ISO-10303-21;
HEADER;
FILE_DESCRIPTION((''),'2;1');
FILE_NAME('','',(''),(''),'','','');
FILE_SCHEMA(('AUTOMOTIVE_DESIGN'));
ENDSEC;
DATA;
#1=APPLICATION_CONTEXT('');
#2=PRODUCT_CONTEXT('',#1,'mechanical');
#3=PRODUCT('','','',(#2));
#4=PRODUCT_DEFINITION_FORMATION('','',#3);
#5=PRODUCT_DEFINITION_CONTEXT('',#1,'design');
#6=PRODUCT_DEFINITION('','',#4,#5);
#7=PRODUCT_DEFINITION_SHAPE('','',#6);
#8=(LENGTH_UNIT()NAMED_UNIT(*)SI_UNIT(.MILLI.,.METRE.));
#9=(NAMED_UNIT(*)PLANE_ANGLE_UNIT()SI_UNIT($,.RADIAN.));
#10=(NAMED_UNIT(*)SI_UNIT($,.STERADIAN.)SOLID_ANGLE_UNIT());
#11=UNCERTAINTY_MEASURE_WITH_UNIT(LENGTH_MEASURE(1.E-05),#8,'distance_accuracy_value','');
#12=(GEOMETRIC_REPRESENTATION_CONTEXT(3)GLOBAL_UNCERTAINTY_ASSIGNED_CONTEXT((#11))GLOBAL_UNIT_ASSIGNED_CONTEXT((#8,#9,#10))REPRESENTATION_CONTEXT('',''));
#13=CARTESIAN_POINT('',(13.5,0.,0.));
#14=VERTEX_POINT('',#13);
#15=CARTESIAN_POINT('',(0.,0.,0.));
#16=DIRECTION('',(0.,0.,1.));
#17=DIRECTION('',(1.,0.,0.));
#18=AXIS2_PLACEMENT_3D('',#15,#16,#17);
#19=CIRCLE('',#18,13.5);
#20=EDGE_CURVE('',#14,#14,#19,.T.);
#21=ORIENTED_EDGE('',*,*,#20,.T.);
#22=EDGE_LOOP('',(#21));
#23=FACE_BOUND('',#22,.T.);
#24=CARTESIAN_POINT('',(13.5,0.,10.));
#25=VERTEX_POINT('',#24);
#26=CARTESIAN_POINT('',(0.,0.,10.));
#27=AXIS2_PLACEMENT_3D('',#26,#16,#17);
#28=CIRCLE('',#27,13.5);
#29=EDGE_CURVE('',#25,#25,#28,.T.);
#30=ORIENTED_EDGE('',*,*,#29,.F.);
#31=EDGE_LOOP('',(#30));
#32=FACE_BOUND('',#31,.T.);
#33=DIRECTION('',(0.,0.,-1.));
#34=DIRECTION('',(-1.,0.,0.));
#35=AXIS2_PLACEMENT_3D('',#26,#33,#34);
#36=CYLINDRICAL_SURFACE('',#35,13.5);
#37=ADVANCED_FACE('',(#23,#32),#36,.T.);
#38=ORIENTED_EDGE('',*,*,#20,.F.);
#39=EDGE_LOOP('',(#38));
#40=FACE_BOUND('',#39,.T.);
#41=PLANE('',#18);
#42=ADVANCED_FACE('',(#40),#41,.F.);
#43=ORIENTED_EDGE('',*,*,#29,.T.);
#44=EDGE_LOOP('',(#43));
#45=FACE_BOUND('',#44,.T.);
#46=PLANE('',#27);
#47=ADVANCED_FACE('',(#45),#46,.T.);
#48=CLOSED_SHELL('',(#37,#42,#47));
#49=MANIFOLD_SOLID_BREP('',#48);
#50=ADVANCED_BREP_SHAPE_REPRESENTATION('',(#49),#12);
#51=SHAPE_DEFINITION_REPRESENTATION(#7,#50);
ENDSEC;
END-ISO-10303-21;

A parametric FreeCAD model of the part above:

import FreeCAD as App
import Part
import Sketcher

V = App.Vector

doc = App.newDocument("Part")
body = doc.addObject("PartDesign::Body", "Body")

# Sketch on XY plane
sketch1 = doc.addObject("Sketcher::SketchObject", "Sketch")
body.addObject(sketch1)
sketch1.AttachmentSupport = (doc.XY_Plane, [""])
sketch1.MapMode = "FlatFace"
sketch1.addGeometry(Part.Circle(V(0, 0, 0), V(0, 0, 1), 14), False)
sketch1.addConstraint(Sketcher.Constraint("Coincident", 0, 3, -1, 1))
sketch1.addConstraint(Sketcher.Constraint("Diameter", 0, 27.0))
pad1 = doc.addObject("PartDesign::Pad", "Pad")
body.addObject(pad1)
pad1.Profile = sketch1
pad1.Length = 10

doc.recompute()
